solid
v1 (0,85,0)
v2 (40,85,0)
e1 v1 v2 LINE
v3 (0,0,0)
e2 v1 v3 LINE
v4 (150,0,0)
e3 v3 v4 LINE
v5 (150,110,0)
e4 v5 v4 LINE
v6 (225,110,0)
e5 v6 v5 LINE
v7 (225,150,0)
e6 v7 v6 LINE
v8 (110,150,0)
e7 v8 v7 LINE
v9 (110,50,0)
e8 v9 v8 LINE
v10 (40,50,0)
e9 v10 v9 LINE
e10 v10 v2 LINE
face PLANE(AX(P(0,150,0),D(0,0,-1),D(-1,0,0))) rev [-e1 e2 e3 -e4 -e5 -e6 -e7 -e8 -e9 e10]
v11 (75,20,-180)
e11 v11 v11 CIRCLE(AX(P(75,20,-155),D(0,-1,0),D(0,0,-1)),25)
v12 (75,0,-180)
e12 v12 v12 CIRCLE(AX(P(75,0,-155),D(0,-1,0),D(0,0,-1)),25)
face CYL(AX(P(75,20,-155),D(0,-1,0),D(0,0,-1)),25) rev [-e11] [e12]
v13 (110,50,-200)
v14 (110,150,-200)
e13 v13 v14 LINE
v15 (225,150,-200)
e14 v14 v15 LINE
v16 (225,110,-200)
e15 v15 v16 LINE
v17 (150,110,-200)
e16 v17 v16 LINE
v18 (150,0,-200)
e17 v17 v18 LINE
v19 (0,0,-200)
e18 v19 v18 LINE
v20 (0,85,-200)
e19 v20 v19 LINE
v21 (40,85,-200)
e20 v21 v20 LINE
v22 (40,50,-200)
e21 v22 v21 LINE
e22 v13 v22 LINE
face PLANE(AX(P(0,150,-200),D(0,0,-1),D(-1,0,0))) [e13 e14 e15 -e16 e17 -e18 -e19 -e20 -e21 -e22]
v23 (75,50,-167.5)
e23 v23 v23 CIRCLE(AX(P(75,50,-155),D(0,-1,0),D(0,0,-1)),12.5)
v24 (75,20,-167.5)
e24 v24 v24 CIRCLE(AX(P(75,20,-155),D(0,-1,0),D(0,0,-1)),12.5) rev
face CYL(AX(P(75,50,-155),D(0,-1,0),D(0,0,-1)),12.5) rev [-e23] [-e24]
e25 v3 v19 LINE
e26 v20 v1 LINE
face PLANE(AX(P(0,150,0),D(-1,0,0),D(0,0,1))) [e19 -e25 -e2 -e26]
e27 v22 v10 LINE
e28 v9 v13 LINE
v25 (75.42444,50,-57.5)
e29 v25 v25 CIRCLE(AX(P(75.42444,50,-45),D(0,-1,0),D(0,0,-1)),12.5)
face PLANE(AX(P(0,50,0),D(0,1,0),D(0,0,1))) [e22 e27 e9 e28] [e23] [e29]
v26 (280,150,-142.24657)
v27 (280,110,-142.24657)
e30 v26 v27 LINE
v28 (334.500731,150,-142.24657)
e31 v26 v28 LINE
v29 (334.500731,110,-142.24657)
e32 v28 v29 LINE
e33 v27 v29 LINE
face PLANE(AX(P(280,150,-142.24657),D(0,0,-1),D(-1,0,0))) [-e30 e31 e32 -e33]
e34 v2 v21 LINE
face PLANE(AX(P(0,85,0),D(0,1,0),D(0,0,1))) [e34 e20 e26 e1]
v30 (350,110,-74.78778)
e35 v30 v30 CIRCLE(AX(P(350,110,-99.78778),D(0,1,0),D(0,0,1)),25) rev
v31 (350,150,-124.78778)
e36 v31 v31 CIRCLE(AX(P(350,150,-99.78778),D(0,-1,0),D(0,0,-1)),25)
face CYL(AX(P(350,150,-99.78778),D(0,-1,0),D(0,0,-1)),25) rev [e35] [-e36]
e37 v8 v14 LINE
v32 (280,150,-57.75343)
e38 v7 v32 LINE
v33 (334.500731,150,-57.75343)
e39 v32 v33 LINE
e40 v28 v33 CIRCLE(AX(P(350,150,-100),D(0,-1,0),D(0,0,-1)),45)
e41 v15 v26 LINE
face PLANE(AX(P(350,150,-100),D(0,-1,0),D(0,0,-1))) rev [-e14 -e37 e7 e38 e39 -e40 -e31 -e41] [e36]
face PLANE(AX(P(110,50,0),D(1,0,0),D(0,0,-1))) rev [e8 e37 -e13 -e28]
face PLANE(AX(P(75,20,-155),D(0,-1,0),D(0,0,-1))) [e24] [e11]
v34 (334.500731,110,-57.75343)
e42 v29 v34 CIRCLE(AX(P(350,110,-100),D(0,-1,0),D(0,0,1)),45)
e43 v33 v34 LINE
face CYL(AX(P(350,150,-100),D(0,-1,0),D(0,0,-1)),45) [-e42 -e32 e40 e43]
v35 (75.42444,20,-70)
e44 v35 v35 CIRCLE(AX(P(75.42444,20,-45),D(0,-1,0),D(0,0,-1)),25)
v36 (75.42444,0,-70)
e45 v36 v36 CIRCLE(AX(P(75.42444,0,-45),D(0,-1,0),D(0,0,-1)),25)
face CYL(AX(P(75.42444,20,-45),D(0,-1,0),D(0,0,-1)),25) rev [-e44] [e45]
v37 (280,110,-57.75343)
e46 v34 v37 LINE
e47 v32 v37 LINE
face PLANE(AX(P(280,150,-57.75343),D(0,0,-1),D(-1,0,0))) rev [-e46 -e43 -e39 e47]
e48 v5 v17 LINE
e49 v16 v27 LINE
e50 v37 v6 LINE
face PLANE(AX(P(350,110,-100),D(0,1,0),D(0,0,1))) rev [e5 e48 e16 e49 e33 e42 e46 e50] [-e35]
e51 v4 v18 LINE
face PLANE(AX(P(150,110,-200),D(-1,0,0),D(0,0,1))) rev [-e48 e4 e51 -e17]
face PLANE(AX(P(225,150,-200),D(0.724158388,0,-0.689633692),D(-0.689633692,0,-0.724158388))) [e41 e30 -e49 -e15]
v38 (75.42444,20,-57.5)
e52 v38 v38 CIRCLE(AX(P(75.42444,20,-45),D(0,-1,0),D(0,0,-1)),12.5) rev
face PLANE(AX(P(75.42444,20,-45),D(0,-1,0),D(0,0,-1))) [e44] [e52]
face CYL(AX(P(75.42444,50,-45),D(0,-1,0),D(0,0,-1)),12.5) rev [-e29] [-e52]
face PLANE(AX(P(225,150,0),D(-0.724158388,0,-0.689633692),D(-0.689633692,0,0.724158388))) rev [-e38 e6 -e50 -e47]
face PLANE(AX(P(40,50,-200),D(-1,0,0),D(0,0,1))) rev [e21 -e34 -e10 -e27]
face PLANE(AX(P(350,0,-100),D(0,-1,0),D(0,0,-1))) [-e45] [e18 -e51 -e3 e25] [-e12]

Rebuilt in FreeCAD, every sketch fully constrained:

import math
import FreeCAD as App
import Part
import Sketcher

doc = App.newDocument("Part")
params = doc.addObject("Spreadsheet::Sheet", "Params")
for row, (alias, value) in enumerate([
    ("sketch1_radius", "45 mm"),
    ("sketch1_width", "225 mm"),
    ("sketch1_height", "200 mm"),
    ("pad1_length", "150 mm"),
    ("sketch2_diameter", "25 mm"),
    ("pocket1_length", "50 mm"),
    ("sketch3_diameter", "50 mm"),
    ("pocket2_length", "20 mm"),
    ("sketch4_diameter", "25 mm"),
    ("pocket3_length", "50 mm"),
    ("sketch5_diameter", "50 mm"),
    ("pocket4_length", "20 mm"),
    ("sketch6_diameter", "50 mm"),
    ("pocket5_length", "150 mm"),
    ("sketch7_width", "40 mm"),
    ("sketch7_height", "200 mm"),
    ("pocket6_length", "65 mm"),
    ("sketch8_width", "70 mm"),
    ("sketch8_height", "200 mm"),
    ("pocket7_length", "100 mm"),
    ("sketch9_radius", "45 mm"),
    ("sketch9_width", "75 mm"),
    ("sketch9_height", "200 mm"),
    ("pocket8_length", "110 mm"),
], start=1):
    params.set(f"A{row}", alias)
    params.set(f"B{row}", "=" + value)
    params.setAlias(f"B{row}", alias)

body = doc.addObject("PartDesign::Body", "Body")

# Sketch on XZ plane
sketch1 = body.newObject("Sketcher::SketchObject", "Sketch")
sketch1.AttachmentSupport = (doc.getObject("XZ_Plane"), [""])
sketch1.MapMode = "FlatFace"
sketch1.addGeometry(Part.LineSegment(App.Vector(0, -200, 0), App.Vector(0, 0, 0)), False)
sketch1.addGeometry(Part.LineSegment(App.Vector(0, 0, 0), App.Vector(225, 0, 0)), False)
sketch1.addGeometry(Part.LineSegment(App.Vector(225, 0, 0), App.Vector(280, -58, 0)), False)
sketch1.addGeometry(Part.LineSegment(App.Vector(280, -58, 0), App.Vector(335, -58, 0)), False)
sketch1.addGeometry(Part.ArcOfCircle(Part.Circle(App.Vector(350, -100, 0), App.Vector(0, 0, 1), 45), math.radians(-110), math.radians(110)), False)
sketch1.addGeometry(Part.LineSegment(App.Vector(335, -142, 0), App.Vector(280, -142, 0)), False)
sketch1.addGeometry(Part.LineSegment(App.Vector(280, -142, 0), App.Vector(225, -200, 0)), False)
sketch1.addGeometry(Part.LineSegment(App.Vector(225, -200, 0), App.Vector(0, -200, 0)), False)
sketch1.addConstraint(Sketcher.Constraint("Coincident", 0, 2, 1, 1))
sketch1.addConstraint(Sketcher.Constraint("Coincident", 1, 2, 2, 1))
sketch1.addConstraint(Sketcher.Constraint("Coincident", 2, 2, 3, 1))
sketch1.addConstraint(Sketcher.Constraint("Coincident", 3, 2, 4, 2))
sketch1.addConstraint(Sketcher.Constraint("Coincident", 4, 1, 5, 1))
sketch1.addConstraint(Sketcher.Constraint("Coincident", 5, 2, 6, 1))
sketch1.addConstraint(Sketcher.Constraint("Coincident", 6, 2, 7, 1))
sketch1.addConstraint(Sketcher.Constraint("Coincident", 7, 2, 0, 1))
sketch1.addConstraint(Sketcher.Constraint("Vertical", 0))
sketch1.addConstraint(Sketcher.Constraint("Horizontal", 1))
sketch1.addConstraint(Sketcher.Constraint("Horizontal", 3))
sketch1.addConstraint(Sketcher.Constraint("Horizontal", 5))
sketch1.addConstraint(Sketcher.Constraint("Horizontal", 7))
sketch1.addConstraint(Sketcher.Constraint("Coincident", 0, 2, -1, 1))
sketch1.addConstraint(Sketcher.Constraint("Vertical", 3, 2, 4, 1))
sketch1.addConstraint(Sketcher.Constraint("Vertical", 2, 2, 5, 2))
sketch1.addConstraint(Sketcher.Constraint("Vertical", 1, 2, 6, 2))
sketch1.addConstraint(Sketcher.Constraint("Equal", 2, 6))
sketch1.addConstraint(Sketcher.Constraint("Radius", 4, 45.0))
sketch1.addConstraint(Sketcher.Constraint("DistanceX", 1, 1, 1, 2, 225.0))
sketch1.addConstraint(Sketcher.Constraint("DistanceY", 0, 1, 0, 2, 200.0))
sketch1.addConstraint(Sketcher.Constraint("DistanceX", -1, 1, 4, 3, 350.0))
sketch1.addConstraint(Sketcher.Constraint("DistanceX", -1, 1, 2, 2, 280.0))
sketch1.addConstraint(Sketcher.Constraint("DistanceX", 3, 1, 3, 2, 54.500731))
sketch1.setExpression("Constraints[18]", "Params.sketch1_radius")
sketch1.setExpression("Constraints[19]", "Params.sketch1_width")
sketch1.setExpression("Constraints[20]", "Params.sketch1_height")
pad1 = body.newObject("PartDesign::Pad", "Pad")
pad1.Profile = sketch1
pad1.setExpression("Length", "Params.pad1_length")
pad1.Reversed = True

# Sketch on XZ plane
sketch2 = body.newObject("Sketcher::SketchObject", "Sketch001")
sketch2.AttachmentSupport = (doc.getObject("XZ_Plane"), [""])
sketch2.MapMode = "FlatFace"
sketch2.addGeometry(Part.Circle(App.Vector(75, -45, 0), App.Vector(0, 0, 1), 12), False)
sketch2.addConstraint(Sketcher.Constraint("Diameter", 0, 25.0))
sketch2.addConstraint(Sketcher.Constraint("DistanceY", 0, 3, -1, 1, 45.0))
sketch2.addConstraint(Sketcher.Constraint("DistanceX", -1, 1, 0, 3, 75.42444))
sketch2.setExpression("Constraints[0]", "Params.sketch2_diameter")
pocket1 = body.newObject("PartDesign::Pocket", "Pocket")
pocket1.Profile = sketch2
pocket1.setExpression("Length", "Params.pocket1_length")

# Sketch on XZ plane
sketch3 = body.newObject("Sketcher::SketchObject", "Sketch002")
sketch3.AttachmentSupport = (doc.getObject("XZ_Plane"), [""])
sketch3.MapMode = "FlatFace"
sketch3.addGeometry(Part.Circle(App.Vector(75, -45, 0), App.Vector(0, 0, 1), 25), False)
sketch3.addConstraint(Sketcher.Constraint("Diameter", 0, 50.0))
sketch3.addConstraint(Sketcher.Constraint("DistanceY", 0, 3, -1, 1, 45.0))
sketch3.addConstraint(Sketcher.Constraint("DistanceX", -1, 1, 0, 3, 75.42444))
sketch3.setExpression("Constraints[0]", "Params.sketch3_diameter")
pocket2 = body.newObject("PartDesign::Pocket", "Pocket001")
pocket2.Profile = sketch3
pocket2.setExpression("Length", "Params.pocket2_length")

# Sketch on XZ plane
sketch4 = body.newObject("Sketcher::SketchObject", "Sketch003")
sketch4.AttachmentSupport = (doc.getObject("XZ_Plane"), [""])
sketch4.MapMode = "FlatFace"
sketch4.addGeometry(Part.Circle(App.Vector(75, -155, 0), App.Vector(0, 0, 1), 12), False)
sketch4.addConstraint(Sketcher.Constraint("Diameter", 0, 25.0))
sketch4.addConstraint(Sketcher.Constraint("DistanceX", -1, 1, 0, 3, 75.0))
sketch4.addConstraint(Sketcher.Constraint("DistanceY", 0, 3, -1, 1, 155.0))
sketch4.setExpression("Constraints[0]", "Params.sketch4_diameter")
pocket3 = body.newObject("PartDesign::Pocket", "Pocket002")
pocket3.Profile = sketch4
pocket3.setExpression("Length", "Params.pocket3_length")

# Sketch on XZ plane
sketch5 = body.newObject("Sketcher::SketchObject", "Sketch004")
sketch5.AttachmentSupport = (doc.getObject("XZ_Plane"), [""])
sketch5.MapMode = "FlatFace"
sketch5.addGeometry(Part.Circle(App.Vector(75, -155, 0), App.Vector(0, 0, 1), 25), False)
sketch5.addConstraint(Sketcher.Constraint("Diameter", 0, 50.0))
sketch5.addConstraint(Sketcher.Constraint("DistanceX", -1, 1, 0, 3, 75.0))
sketch5.addConstraint(Sketcher.Constraint("DistanceY", 0, 3, -1, 1, 155.0))
sketch5.setExpression("Constraints[0]", "Params.sketch5_diameter")
pocket4 = body.newObject("PartDesign::Pocket", "Pocket003")
pocket4.Profile = sketch5
pocket4.setExpression("Length", "Params.pocket4_length")

# Sketch on XZ plane
sketch6 = body.newObject("Sketcher::SketchObject", "Sketch005")
sketch6.AttachmentSupport = (doc.getObject("XZ_Plane"), [""])
sketch6.MapMode = "FlatFace"
sketch6.addGeometry(Part.Circle(App.Vector(350, -100, 0), App.Vector(0, 0, 1), 25), False)
sketch6.addConstraint(Sketcher.Constraint("Diameter", 0, 50.0))
sketch6.addConstraint(Sketcher.Constraint("DistanceX", -1, 1, 0, 3, 350.0))
sketch6.addConstraint(Sketcher.Constraint("DistanceY", 0, 3, -1, 1, 99.78778))
sketch6.setExpression("Constraints[0]", "Params.sketch6_diameter")
pocket5 = body.newObject("PartDesign::Pocket", "Pocket004")
pocket5.Profile = sketch6
pocket5.setExpression("Length", "Params.pocket5_length")

# Sketch on XZ plane
sketch7 = body.newObject("Sketcher::SketchObject", "Sketch006")
sketch7.AttachmentSupport = (doc.getObject("XZ_Plane"), [""])
sketch7.MapMode = "FlatFace"
sketch7.AttachmentOffset = App.Placement(App.Vector(0, 0, -150), App.Rotation())
sketch7.addGeometry(Part.LineSegment(App.Vector(0, -200, 0), App.Vector(0, 0, 0)), False)
sketch7.addGeometry(Part.LineSegment(App.Vector(0, 0, 0), App.Vector(40, 0, 0)), False)
sketch7.addGeometry(Part.LineSegment(App.Vector(40, 0, 0), App.Vector(40, -200, 0)), False)
sketch7.addGeometry(Part.LineSegment(App.Vector(40, -200, 0), App.Vector(0, -200, 0)), False)
sketch7.addConstraint(Sketcher.Constraint("Coincident", 0, 2, 1, 1))
sketch7.addConstraint(Sketcher.Constraint("Coincident", 1, 2, 2, 1))
sketch7.addConstraint(Sketcher.Constraint("Coincident", 2, 2, 3, 1))
sketch7.addConstraint(Sketcher.Constraint("Coincident", 3, 2, 0, 1))
sketch7.addConstraint(Sketcher.Constraint("Vertical", 0))
sketch7.addConstraint(Sketcher.Constraint("Horizontal", 1))
sketch7.addConstraint(Sketcher.Constraint("Vertical", 2))
sketch7.addConstraint(Sketcher.Constraint("Horizontal", 3))
sketch7.addConstraint(Sketcher.Constraint("Coincident", 0, 2, -1, 1))
sketch7.addConstraint(Sketcher.Constraint("DistanceX", 1, 1, 1, 2, 40.0))
sketch7.addConstraint(Sketcher.Constraint("DistanceY", 0, 1, 0, 2, 200.0))
sketch7.setExpression("Constraints[9]", "Params.sketch7_width")
sketch7.setExpression("Constraints[10]", "Params.sketch7_height")
pocket6 = body.newObject("PartDesign::Pocket", "Pocket005")
pocket6.Profile = sketch7
pocket6.setExpression("Length", "Params.pocket6_length")
pocket6.Reversed = True

# Sketch on XZ plane
sketch8 = body.newObject("Sketcher::SketchObject", "Sketch007")
sketch8.AttachmentSupport = (doc.getObject("XZ_Plane"), [""])
sketch8.MapMode = "FlatFace"
sketch8.AttachmentOffset = App.Placement(App.Vector(0, 0, -150), App.Rotation())
sketch8.addGeometry(Part.LineSegment(App.Vector(40, -200, 0), App.Vector(40, 0, 0)), False)
sketch8.addGeometry(Part.LineSegment(App.Vector(40, 0, 0), App.Vector(110, 0, 0)), False)
sketch8.addGeometry(Part.LineSegment(App.Vector(110, 0, 0), App.Vector(110, -200, 0)), False)
sketch8.addGeometry(Part.LineSegment(App.Vector(110, -200, 0), App.Vector(40, -200, 0)), False)
sketch8.addConstraint(Sketcher.Constraint("Coincident", 0, 2, 1, 1))
sketch8.addConstraint(Sketcher.Constraint("Coincident", 1, 2, 2, 1))
sketch8.addConstraint(Sketcher.Constraint("Coincident", 2, 2, 3, 1))
sketch8.addConstraint(Sketcher.Constraint("Coincident", 3, 2, 0, 1))
sketch8.addConstraint(Sketcher.Constraint("Vertical", 0))
sketch8.addConstraint(Sketcher.Constraint("Horizontal", 1))
sketch8.addConstraint(Sketcher.Constraint("Vertical", 2))
sketch8.addConstraint(Sketcher.Constraint("Horizontal", 3))
sketch8.addConstraint(Sketcher.Constraint("PointOnObject", 0, 2, -1))
sketch8.addConstraint(Sketcher.Constraint("DistanceX", 1, 1, 1, 2, 70.0))
sketch8.addConstraint(Sketcher.Constraint("DistanceY", 0, 1, 0, 2, 200.0))
sketch8.addConstraint(Sketcher.Constraint("DistanceX", -1, 1, 0, 2, 40.0))
sketch8.setExpression("Constraints[9]", "Params.sketch8_width")
sketch8.setExpression("Constraints[10]", "Params.sketch8_height")
pocket7 = body.newObject("PartDesign::Pocket", "Pocket006")
pocket7.Profile = sketch8
pocket7.setExpression("Length", "Params.pocket7_length")
pocket7.Reversed = True

# Sketch on XZ plane
sketch9 = body.newObject("Sketcher::SketchObject", "Sketch008")
sketch9.AttachmentSupport = (doc.getObject("XZ_Plane"), [""])
sketch9.MapMode = "FlatFace"
sketch9.addGeometry(Part.LineSegment(App.Vector(150, 0, 0), App.Vector(150, -200, 0)), False)
sketch9.addGeometry(Part.LineSegment(App.Vector(150, -200, 0), App.Vector(225, -200, 0)), False)
sketch9.addGeometry(Part.LineSegment(App.Vector(225, -200, 0), App.Vector(280, -142, 0)), False)
sketch9.addGeometry(Part.LineSegment(App.Vector(280, -142, 0), App.Vector(335, -142, 0)), False)
sketch9.addGeometry(Part.ArcOfCircle(Part.Circle(App.Vector(350, -100, 0), App.Vector(0, 0, 1), 45), math.radians(-110), math.radians(110)), False)
sketch9.addGeometry(Part.LineSegment(App.Vector(335, -58, 0), App.Vector(280, -58, 0)), False)
sketch9.addGeometry(Part.LineSegment(App.Vector(280, -58, 0), App.Vector(225, 0, 0)), False)
sketch9.addGeometry(Part.LineSegment(App.Vector(225, 0, 0), App.Vector(150, 0, 0)), False)
sketch9.addConstraint(Sketcher.Constraint("Coincident", 0, 2, 1, 1))
sketch9.addConstraint(Sketcher.Constraint("Coincident", 1, 2, 2, 1))
sketch9.addConstraint(Sketcher.Constraint("Coincident", 2, 2, 3, 1))
sketch9.addConstraint(Sketcher.Constraint("Coincident", 3, 2, 4, 1))
sketch9.addConstraint(Sketcher.Constraint("Coincident", 4, 2, 5, 1))
sketch9.addConstraint(Sketcher.Constraint("Coincident", 5, 2, 6, 1))
sketch9.addConstraint(Sketcher.Constraint("Coincident", 6, 2, 7, 1))
sketch9.addConstraint(Sketcher.Constraint("Coincident", 7, 2, 0, 1))
sketch9.addConstraint(Sketcher.Constraint("Vertical", 0))
sketch9.addConstraint(Sketcher.Constraint("Horizontal", 1))
sketch9.addConstraint(Sketcher.Constraint("Horizontal", 3))
sketch9.addConstraint(Sketcher.Constraint("Horizontal", 5))
sketch9.addConstraint(Sketcher.Constraint("Horizontal", 7))
sketch9.addConstraint(Sketcher.Constraint("PointOnObject", 6, 2, -1))
sketch9.addConstraint(Sketcher.Constraint("Vertical", 3, 2, 4, 2))
sketch9.addConstraint(Sketcher.Constraint("Vertical", 2, 2, 5, 2))
sketch9.addConstraint(Sketcher.Constraint("Vertical", 1, 2, 6, 2))
sketch9.addConstraint(Sketcher.Constraint("Equal", 2, 6))
sketch9.addConstraint(Sketcher.Constraint("Radius", 4, 45.0))
sketch9.addConstraint(Sketcher.Constraint("DistanceX", 1, 1, 1, 2, 75.0))
sketch9.addConstraint(Sketcher.Constraint("DistanceY", 0, 2, 0, 1, 200.0))
sketch9.addConstraint(Sketcher.Constraint("DistanceX", -1, 1, 4, 3, 350.0))
sketch9.addConstraint(Sketcher.Constraint("DistanceX", -1, 1, 0, 2, 150.0))
sketch9.addConstraint(Sketcher.Constraint("DistanceX", -1, 1, 2, 2, 280.0))
sketch9.addConstraint(Sketcher.Constraint("DistanceX", 3, 1, 3, 2, 54.500731))
sketch9.setExpression("Constraints[18]", "Params.sketch9_radius")
sketch9.setExpression("Constraints[19]", "Params.sketch9_width")
sketch9.setExpression("Constraints[20]", "Params.sketch9_height")
pocket8 = body.newObject("PartDesign::Pocket", "Pocket007")
pocket8.Profile = sketch9
pocket8.setExpression("Length", "Params.pocket8_length")

doc.recompute()
